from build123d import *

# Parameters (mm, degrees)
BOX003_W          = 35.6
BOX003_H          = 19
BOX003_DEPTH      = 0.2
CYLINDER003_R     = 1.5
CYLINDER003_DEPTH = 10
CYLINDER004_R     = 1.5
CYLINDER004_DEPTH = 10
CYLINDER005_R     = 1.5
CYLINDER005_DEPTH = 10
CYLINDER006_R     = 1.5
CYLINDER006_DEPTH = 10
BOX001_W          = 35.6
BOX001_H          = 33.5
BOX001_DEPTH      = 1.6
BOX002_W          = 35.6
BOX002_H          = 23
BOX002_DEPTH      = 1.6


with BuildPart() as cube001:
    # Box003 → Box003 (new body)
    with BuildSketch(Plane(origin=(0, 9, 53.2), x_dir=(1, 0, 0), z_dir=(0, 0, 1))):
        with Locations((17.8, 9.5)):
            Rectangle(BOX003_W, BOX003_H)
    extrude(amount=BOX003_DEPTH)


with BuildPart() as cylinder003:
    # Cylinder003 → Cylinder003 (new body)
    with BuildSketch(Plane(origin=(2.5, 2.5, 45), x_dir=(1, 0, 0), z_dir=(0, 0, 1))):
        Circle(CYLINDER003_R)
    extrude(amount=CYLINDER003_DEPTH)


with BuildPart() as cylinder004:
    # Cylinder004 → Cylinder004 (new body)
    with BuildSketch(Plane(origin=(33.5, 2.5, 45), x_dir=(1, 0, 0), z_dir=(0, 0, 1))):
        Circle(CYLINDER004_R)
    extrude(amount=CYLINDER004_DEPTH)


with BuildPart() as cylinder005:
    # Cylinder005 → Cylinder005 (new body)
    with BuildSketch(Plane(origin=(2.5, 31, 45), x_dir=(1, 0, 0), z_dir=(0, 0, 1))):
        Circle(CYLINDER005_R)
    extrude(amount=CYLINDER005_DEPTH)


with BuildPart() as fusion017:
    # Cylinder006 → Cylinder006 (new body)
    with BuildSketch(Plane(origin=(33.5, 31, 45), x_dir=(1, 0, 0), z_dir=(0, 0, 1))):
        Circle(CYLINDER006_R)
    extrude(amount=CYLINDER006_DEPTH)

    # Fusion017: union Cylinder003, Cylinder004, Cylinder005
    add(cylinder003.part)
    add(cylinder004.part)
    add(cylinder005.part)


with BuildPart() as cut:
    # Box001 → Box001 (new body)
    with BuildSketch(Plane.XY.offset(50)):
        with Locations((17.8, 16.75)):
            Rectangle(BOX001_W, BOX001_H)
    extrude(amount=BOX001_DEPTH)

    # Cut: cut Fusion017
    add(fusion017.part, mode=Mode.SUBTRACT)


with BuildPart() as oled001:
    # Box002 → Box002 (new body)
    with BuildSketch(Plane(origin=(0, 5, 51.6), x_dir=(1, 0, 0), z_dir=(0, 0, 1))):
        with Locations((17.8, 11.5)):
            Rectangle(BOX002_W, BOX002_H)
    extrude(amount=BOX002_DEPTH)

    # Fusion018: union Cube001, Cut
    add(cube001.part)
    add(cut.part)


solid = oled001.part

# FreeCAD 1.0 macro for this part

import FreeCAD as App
import Part
import Sketcher
Q = App.Units.Quantity


def add_polygon(sketch, points):
    """Adds a closed chain of lines whose ends are joined by coincident constraints."""
    first, n = sketch.GeometryCount, len(points)
    for a, b in zip(points, points[1:] + points[:1]):
        sketch.addGeometry(Part.LineSegment(App.Vector(*a, 0), App.Vector(*b, 0)), False)
    for i in range(n):
        sketch.addConstraint(Sketcher.Constraint("Coincident", first + i, 2, first + (i + 1) % n, 1))

doc = App.newDocument("Part")
params = doc.addObject("Spreadsheet::Sheet", "Params")
for row, (alias, value) in enumerate([
    ("sketch1_height", "19 mm"),
    ("sketch1_width", "35.6 mm"),
    ("pad1_length", "0.2 mm"),
    ("sketch2_diameter", "3 mm"),
    ("pad2_length", "10 mm"),
    ("sketch3_diameter", "3 mm"),
    ("pad3_length", "10 mm"),
    ("sketch4_diameter", "3 mm"),
    ("pad4_length", "10 mm"),
    ("sketch5_diameter", "3 mm"),
    ("pad5_length", "10 mm"),
    ("sketch6_width", "35.6 mm"),
    ("sketch6_height", "33.5 mm"),
    ("pad6_length", "1.6 mm"),
    ("sketch7_height", "23 mm"),
    ("sketch7_width", "35.6 mm"),
    ("pad7_length", "1.6 mm"),
], start=1):
    params.set(f"A{row}", alias)
    params.set(f"B{row}", "=" + value)
    params.setAlias(f"B{row}", alias)

body = doc.addObject("PartDesign::Body", "Body")

sketch1 = body.newObject("Sketcher::SketchObject", "Sketch")
sketch1.AttachmentSupport = (doc.getObject("XY_Plane"), [""])
sketch1.MapMode = "FlatFace"
sketch1.AttachmentOffset = App.Placement(App.Vector(0, 0, 53.2), App.Rotation())
add_polygon(sketch1, [(0, 28), (0, 9), (36, 9), (36, 28)])
sketch1.addConstraint(Sketcher.Constraint("Vertical", 0))
sketch1.addConstraint(Sketcher.Constraint("Horizontal", 1))
sketch1.addConstraint(Sketcher.Constraint("Vertical", 2))
sketch1.addConstraint(Sketcher.Constraint("Horizontal", 3))
sketch1.addConstraint(Sketcher.Constraint("PointOnObject", 0, 2, -2))
sketch1.addConstraint(Sketcher.Constraint("DistanceY", 0, 2, 0, 1, Q("19 mm")))
sketch1.addConstraint(Sketcher.Constraint("DistanceX", 1, 1, 1, 2, Q("35.6 mm")))
sketch1.addConstraint(Sketcher.Constraint("DistanceY", -1, 1, 0, 2, Q("9 mm")))
sketch1.setExpression("Constraints[9]", "Params.sketch1_height")
sketch1.setExpression("Constraints[10]", "Params.sketch1_width")
pad1 = body.newObject("PartDesign::Pad", "Pad")
pad1.Profile = sketch1
pad1.setExpression("Length", "Params.pad1_length")
body2 = doc.addObject("PartDesign::Body", "Body001")

sketch2 = body2.newObject("Sketcher::SketchObject", "Sketch001")
sketch2.AttachmentSupport = (doc.getObject("XY_Plane001"), [""])
sketch2.MapMode = "FlatFace"
sketch2.AttachmentOffset = App.Placement(App.Vector(0, 0, 45), App.Rotation())
sketch2.addGeometry(Part.Circle(App.Vector(2.5, 2.5, 0), App.Vector(0, 0, 1), 1.5), False)
sketch2.addConstraint(Sketcher.Constraint("Diameter", 0, Q("3 mm")))
sketch2.addConstraint(Sketcher.Constraint("DistanceX", -1, 1, 0, 3, Q("2.5 mm")))
sketch2.addConstraint(Sketcher.Constraint("DistanceY", -1, 1, 0, 3, Q("2.5 mm")))
sketch2.setExpression("Constraints[0]", "Params.sketch2_diameter")
pad2 = body2.newObject("PartDesign::Pad", "Pad001")
pad2.Profile = sketch2
pad2.setExpression("Length", "Params.pad2_length")
body3 = doc.addObject("PartDesign::Body", "Body002")

sketch3 = body3.newObject("Sketcher::SketchObject", "Sketch002")
sketch3.AttachmentSupport = (doc.getObject("XY_Plane002"), [""])
sketch3.MapMode = "FlatFace"
sketch3.AttachmentOffset = App.Placement(App.Vector(0, 0, 45), App.Rotation())
sketch3.addGeometry(Part.Circle(App.Vector(33.5, 2.5, 0), App.Vector(0, 0, 1), 1.5), False)
sketch3.addConstraint(Sketcher.Constraint("Diameter", 0, Q("3 mm")))
sketch3.addConstraint(Sketcher.Constraint("DistanceX", -1, 1, 0, 3, Q("33.5 mm")))
sketch3.addConstraint(Sketcher.Constraint("DistanceY", -1, 1, 0, 3, Q("2.5 mm")))
sketch3.setExpression("Constraints[0]", "Params.sketch3_diameter")
pad3 = body3.newObject("PartDesign::Pad", "Pad002")
pad3.Profile = sketch3
pad3.setExpression("Length", "Params.pad3_length")
body4 = doc.addObject("PartDesign::Body", "Body003")

sketch4 = body4.newObject("Sketcher::SketchObject", "Sketch003")
sketch4.AttachmentSupport = (doc.getObject("XY_Plane003"), [""])
sketch4.MapMode = "FlatFace"
sketch4.AttachmentOffset = App.Placement(App.Vector(0, 0, 45), App.Rotation())
sketch4.addGeometry(Part.Circle(App.Vector(2.5, 31, 0), App.Vector(0, 0, 1), 1.5), False)
sketch4.addConstraint(Sketcher.Constraint("Diameter", 0, Q("3 mm")))
sketch4.addConstraint(Sketcher.Constraint("DistanceY", -1, 1, 0, 3, Q("31 mm")))
sketch4.addConstraint(Sketcher.Constraint("DistanceX", -1, 1, 0, 3, Q("2.5 mm")))
sketch4.setExpression("Constraints[0]", "Params.sketch4_diameter")
pad4 = body4.newObject("PartDesign::Pad", "Pad003")
pad4.Profile = sketch4
pad4.setExpression("Length", "Params.pad4_length")
body5 = doc.addObject("PartDesign::Body", "Body004")
body5.AllowCompound = True

sketch5 = body5.newObject("Sketcher::SketchObject", "Sketch004")
sketch5.AttachmentSupport = (doc.getObject("XY_Plane004"), [""])
sketch5.MapMode = "FlatFace"
sketch5.AttachmentOffset = App.Placement(App.Vector(0, 0, 45), App.Rotation())
sketch5.addGeometry(Part.Circle(App.Vector(33.5, 31, 0), App.Vector(0, 0, 1), 1.5), False)
sketch5.addConstraint(Sketcher.Constraint("Diameter", 0, Q("3 mm")))
sketch5.addConstraint(Sketcher.Constraint("DistanceY", -1, 1, 0, 3, Q("31 mm")))
sketch5.addConstraint(Sketcher.Constraint("DistanceX", -1, 1, 0, 3, Q("33.5 mm")))
sketch5.setExpression("Constraints[0]", "Params.sketch5_diameter")
pad5 = body5.newObject("PartDesign::Pad", "Pad004")
pad5.Profile = sketch5
pad5.setExpression("Length", "Params.pad5_length")
doc.recompute()

boolean = body5.newObject("PartDesign::Boolean", "Boolean")
boolean.Type = "Fuse"
boolean.addObjects([body2])
doc.recompute()

boolean2 = body5.newObject("PartDesign::Boolean", "Boolean001")
boolean2.Type = "Fuse"
boolean2.addObjects([body3])
doc.recompute()

boolean3 = body5.newObject("PartDesign::Boolean", "Boolean002")
boolean3.Type = "Fuse"
boolean3.addObjects([body4])
body6 = doc.addObject("PartDesign::Body", "Body005")

sketch6 = body6.newObject("Sketcher::SketchObject", "Sketch005")
sketch6.AttachmentSupport = (doc.getObject("XY_Plane005"), [""])
sketch6.MapMode = "FlatFace"
sketch6.AttachmentOffset = App.Placement(App.Vector(0, 0, 50), App.Rotation())
add_polygon(sketch6, [(0, 34), (0, 0), (36, 0), (36, 34)])
sketch6.addConstraint(Sketcher.Constraint("Vertical", 0))
sketch6.addConstraint(Sketcher.Constraint("Horizontal", 1))
sketch6.addConstraint(Sketcher.Constraint("Vertical", 2))
sketch6.addConstraint(Sketcher.Constraint("Horizontal", 3))
sketch6.addConstraint(Sketcher.Constraint("Coincident", 0, 2, -1, 1))
sketch6.addConstraint(Sketcher.Constraint("DistanceX", 1, 1, 1, 2, Q("35.6 mm")))
sketch6.addConstraint(Sketcher.Constraint("DistanceY", 0, 2, 0, 1, Q("33.5 mm")))
sketch6.setExpression("Constraints[9]", "Params.sketch6_width")
sketch6.setExpression("Constraints[10]", "Params.sketch6_height")
pad6 = body6.newObject("PartDesign::Pad", "Pad005")
pad6.Profile = sketch6
pad6.setExpression("Length", "Params.pad6_length")
doc.recompute()

boolean4 = body6.newObject("PartDesign::Boolean", "Boolean003")
boolean4.Type = "Cut"
boolean4.addObjects([body5])
body7 = doc.addObject("PartDesign::Body", "Body006")

sketch7 = body7.newObject("Sketcher::SketchObject", "Sketch006")
sketch7.AttachmentSupport = (doc.getObject("XY_Plane006"), [""])
sketch7.MapMode = "FlatFace"
sketch7.AttachmentOffset = App.Placement(App.Vector(0, 0, 51.6), App.Rotation())
add_polygon(sketch7, [(0, 28), (0, 5), (36, 5), (36, 28)])
sketch7.addConstraint(Sketcher.Constraint("Vertical", 0))
sketch7.addConstraint(Sketcher.Constraint("Horizontal", 1))
sketch7.addConstraint(Sketcher.Constraint("Vertical", 2))
sketch7.addConstraint(Sketcher.Constraint("Horizontal", 3))
sketch7.addConstraint(Sketcher.Constraint("PointOnObject", 0, 2, -2))
sketch7.addConstraint(Sketcher.Constraint("DistanceY", 0, 2, 0, 1, Q("23 mm")))
sketch7.addConstraint(Sketcher.Constraint("DistanceX", 1, 1, 1, 2, Q("35.6 mm")))
sketch7.addConstraint(Sketcher.Constraint("DistanceY", -1, 1, 0, 2, Q("5 mm")))
sketch7.setExpression("Constraints[9]", "Params.sketch7_height")
sketch7.setExpression("Constraints[10]", "Params.sketch7_width")
pad7 = body7.newObject("PartDesign::Pad", "Pad006")
pad7.Profile = sketch7
pad7.setExpression("Length", "Params.pad7_length")
doc.recompute()

boolean5 = body7.newObject("PartDesign::Boolean", "Boolean004")
boolean5.Type = "Fuse"
boolean5.addObjects([body])
doc.recompute()

boolean6 = body7.newObject("PartDesign::Boolean", "Boolean005")
boolean6.Type = "Fuse"
boolean6.addObjects([body6])

doc.recompute()
